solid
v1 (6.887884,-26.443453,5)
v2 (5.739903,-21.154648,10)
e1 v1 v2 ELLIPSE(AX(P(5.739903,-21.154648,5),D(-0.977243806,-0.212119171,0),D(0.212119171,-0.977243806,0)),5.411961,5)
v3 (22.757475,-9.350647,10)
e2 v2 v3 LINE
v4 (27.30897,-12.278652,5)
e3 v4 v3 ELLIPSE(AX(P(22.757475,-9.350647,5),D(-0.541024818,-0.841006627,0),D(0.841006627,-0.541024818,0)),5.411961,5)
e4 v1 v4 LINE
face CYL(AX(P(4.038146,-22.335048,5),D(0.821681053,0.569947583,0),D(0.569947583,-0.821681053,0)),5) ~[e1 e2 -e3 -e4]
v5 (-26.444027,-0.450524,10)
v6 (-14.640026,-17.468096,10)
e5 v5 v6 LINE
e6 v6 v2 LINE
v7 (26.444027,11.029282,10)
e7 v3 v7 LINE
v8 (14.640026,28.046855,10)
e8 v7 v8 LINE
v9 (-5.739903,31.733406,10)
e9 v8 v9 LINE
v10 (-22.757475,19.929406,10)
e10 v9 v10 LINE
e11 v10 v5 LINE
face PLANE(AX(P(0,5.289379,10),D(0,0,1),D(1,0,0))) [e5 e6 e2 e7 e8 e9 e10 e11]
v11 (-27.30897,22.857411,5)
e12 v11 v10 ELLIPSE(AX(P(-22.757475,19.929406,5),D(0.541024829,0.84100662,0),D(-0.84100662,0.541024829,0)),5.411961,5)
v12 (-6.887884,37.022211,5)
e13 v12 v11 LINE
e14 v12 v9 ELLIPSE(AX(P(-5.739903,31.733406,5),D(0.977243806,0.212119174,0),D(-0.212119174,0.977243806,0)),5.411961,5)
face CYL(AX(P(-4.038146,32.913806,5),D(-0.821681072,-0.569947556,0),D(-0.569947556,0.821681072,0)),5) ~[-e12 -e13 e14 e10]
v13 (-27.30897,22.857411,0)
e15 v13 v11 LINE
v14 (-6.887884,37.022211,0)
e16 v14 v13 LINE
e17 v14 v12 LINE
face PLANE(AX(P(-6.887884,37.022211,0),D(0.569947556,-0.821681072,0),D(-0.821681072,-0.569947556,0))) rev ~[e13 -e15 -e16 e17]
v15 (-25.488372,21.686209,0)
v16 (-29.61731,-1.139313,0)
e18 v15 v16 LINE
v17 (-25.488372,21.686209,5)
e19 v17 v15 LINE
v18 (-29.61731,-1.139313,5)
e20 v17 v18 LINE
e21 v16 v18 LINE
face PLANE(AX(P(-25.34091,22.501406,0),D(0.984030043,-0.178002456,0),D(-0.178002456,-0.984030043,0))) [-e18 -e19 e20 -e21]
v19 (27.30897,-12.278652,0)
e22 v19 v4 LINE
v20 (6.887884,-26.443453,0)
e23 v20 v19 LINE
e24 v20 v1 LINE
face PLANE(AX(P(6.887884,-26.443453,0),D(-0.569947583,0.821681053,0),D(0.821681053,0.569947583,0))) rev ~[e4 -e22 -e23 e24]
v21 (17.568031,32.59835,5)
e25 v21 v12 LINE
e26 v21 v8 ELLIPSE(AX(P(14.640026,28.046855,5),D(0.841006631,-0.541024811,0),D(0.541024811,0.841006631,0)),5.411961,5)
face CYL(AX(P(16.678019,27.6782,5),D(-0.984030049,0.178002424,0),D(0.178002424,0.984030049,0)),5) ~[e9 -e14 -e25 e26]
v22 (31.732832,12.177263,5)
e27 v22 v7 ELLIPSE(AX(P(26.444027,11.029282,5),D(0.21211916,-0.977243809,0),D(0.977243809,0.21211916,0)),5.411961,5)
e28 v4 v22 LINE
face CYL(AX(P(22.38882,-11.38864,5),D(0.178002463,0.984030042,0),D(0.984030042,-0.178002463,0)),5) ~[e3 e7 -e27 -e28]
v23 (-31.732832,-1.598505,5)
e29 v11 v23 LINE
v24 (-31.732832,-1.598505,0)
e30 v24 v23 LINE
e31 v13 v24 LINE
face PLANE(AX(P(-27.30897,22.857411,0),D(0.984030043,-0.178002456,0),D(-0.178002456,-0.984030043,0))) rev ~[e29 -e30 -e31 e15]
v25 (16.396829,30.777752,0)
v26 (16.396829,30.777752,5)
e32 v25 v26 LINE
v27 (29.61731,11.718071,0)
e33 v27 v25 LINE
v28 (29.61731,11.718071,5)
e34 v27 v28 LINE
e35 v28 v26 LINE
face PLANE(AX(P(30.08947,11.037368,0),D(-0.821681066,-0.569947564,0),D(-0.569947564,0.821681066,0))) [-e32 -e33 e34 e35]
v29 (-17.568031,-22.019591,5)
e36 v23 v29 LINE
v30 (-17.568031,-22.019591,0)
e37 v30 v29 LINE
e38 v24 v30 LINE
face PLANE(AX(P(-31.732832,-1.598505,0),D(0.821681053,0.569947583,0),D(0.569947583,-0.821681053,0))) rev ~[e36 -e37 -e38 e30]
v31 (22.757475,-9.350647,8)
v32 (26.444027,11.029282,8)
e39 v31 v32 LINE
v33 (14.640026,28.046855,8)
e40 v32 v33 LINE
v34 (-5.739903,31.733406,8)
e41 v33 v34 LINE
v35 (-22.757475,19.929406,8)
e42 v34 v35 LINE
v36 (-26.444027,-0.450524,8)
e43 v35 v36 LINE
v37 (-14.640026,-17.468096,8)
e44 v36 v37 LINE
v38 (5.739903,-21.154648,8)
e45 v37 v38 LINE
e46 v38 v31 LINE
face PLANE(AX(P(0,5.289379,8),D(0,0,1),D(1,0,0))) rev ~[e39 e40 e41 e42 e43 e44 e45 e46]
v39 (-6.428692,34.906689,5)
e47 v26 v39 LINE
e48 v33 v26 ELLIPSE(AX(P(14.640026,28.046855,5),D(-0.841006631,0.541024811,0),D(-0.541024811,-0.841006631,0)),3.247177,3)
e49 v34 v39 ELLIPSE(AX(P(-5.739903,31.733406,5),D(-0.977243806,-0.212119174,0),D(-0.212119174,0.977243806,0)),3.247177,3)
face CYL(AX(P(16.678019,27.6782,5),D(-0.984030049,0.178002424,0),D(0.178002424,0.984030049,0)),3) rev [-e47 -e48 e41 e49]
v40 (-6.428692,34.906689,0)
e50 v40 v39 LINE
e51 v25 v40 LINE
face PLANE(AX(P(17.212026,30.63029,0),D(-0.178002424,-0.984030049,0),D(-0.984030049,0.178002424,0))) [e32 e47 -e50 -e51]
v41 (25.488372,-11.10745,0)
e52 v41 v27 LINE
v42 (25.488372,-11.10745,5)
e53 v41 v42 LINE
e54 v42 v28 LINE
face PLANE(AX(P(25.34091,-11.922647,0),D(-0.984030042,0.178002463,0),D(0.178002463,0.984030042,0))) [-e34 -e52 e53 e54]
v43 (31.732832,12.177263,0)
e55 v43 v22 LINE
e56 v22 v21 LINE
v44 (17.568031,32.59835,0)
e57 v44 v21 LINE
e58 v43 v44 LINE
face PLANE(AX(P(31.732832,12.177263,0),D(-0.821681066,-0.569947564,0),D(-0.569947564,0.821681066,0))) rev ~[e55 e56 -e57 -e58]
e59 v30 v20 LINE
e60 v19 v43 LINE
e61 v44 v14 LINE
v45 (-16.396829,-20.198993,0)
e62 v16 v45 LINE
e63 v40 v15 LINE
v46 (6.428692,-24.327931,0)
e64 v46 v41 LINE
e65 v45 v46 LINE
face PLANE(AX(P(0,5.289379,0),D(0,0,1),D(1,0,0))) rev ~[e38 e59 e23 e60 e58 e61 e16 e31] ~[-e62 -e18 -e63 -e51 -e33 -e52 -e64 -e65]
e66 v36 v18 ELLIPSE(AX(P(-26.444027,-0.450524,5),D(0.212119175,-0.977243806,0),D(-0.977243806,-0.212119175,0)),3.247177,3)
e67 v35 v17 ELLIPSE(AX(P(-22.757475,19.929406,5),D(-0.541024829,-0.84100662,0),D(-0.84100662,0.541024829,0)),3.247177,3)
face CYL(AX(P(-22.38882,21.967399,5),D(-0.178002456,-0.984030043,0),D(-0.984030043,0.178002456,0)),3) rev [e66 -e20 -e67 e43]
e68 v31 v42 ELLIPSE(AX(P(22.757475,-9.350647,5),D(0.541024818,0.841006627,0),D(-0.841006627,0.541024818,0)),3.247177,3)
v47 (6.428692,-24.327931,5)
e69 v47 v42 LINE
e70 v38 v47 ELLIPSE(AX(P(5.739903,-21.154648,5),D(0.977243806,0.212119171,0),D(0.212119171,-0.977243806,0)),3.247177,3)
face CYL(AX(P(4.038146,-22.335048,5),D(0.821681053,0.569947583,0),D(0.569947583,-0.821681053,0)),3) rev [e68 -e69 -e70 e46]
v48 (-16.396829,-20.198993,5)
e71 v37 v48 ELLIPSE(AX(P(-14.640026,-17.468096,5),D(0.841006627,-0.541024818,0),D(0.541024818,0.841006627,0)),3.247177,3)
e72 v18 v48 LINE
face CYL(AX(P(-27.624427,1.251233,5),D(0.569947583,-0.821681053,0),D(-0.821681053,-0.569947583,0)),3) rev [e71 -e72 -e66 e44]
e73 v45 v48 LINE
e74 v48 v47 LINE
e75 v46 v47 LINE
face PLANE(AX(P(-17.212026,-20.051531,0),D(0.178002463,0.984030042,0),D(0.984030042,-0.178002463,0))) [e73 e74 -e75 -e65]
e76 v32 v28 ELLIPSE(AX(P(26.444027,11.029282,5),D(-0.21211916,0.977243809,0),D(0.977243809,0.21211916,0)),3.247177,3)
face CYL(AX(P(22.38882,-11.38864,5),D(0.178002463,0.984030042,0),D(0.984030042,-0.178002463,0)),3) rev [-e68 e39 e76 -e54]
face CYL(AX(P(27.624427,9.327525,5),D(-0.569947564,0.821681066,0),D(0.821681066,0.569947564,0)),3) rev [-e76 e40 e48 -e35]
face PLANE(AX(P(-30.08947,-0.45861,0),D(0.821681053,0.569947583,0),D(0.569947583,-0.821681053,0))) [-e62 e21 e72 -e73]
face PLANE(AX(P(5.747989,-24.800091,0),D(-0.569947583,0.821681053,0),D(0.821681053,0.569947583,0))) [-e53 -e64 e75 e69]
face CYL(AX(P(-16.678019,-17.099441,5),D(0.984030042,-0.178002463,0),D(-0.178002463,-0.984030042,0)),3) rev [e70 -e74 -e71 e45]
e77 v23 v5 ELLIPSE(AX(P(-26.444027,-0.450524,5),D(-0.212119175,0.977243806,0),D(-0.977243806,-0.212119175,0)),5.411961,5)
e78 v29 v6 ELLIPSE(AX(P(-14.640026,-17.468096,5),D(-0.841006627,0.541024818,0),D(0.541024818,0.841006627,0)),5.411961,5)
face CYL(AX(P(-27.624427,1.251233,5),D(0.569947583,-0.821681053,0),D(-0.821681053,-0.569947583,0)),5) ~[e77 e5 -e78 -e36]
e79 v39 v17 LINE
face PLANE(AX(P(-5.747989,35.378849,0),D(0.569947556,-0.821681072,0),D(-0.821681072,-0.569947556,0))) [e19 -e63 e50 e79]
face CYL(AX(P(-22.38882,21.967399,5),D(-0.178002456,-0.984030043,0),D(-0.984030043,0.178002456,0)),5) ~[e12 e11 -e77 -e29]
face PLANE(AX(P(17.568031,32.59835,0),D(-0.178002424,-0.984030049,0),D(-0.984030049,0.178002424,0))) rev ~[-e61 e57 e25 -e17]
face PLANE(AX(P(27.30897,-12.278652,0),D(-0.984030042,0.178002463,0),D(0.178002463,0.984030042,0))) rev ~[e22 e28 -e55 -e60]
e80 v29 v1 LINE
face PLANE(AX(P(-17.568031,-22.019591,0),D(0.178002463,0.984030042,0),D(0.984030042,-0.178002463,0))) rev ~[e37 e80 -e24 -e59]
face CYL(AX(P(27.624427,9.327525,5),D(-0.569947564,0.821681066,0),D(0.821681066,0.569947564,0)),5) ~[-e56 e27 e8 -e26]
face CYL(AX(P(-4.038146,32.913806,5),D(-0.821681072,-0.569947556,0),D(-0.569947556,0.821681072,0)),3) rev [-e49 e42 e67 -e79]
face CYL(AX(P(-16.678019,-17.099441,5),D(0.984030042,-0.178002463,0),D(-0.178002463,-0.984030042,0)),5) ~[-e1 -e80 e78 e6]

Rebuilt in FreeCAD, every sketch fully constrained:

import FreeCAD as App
import Part
import Sketcher
from FreeCAD import Vector


def edges_at(feature, points):
    """Names of the edges that pass closest to the given points."""
    edges = feature.Shape.Edges
    near = lambda p: min(range(len(edges)), key=lambda i: edges[i].distToShape(Part.Vertex(*p))[0])
    return sorted({f"Edge{near(p) + 1}" for p in points})


def faces_at(feature, points):
    """Names of the faces that lie closest to the given points."""
    faces = feature.Shape.Faces
    near = lambda p: min(range(len(faces)), key=lambda i: faces[i].distToShape(Part.Vertex(*p))[0])
    return sorted({f"Face{near(p) + 1}" for p in points})

doc = App.newDocument("Part")
body = doc.addObject("PartDesign::Body", "Body")

sketch1 = doc.addObject("Sketcher::SketchObject", "Sketch")
body.addObject(sketch1)
sketch1.AttachmentSupport = (doc.XY_Plane, [""])
sketch1.MapMode = "FlatFace"
sketch1.addGeometry([
    Part.LineSegment(Vector(-27, 23, 0), Vector(-32, -2, 0)),
    Part.LineSegment(Vector(-32, -2, 0), Vector(-18, -22, 0)),
    Part.LineSegment(Vector(-18, -22, 0), Vector(7, -26, 0)),
    Part.LineSegment(Vector(7, -26, 0), Vector(27, -12, 0)),
    Part.LineSegment(Vector(27, -12, 0), Vector(32, 12, 0)),
    Part.LineSegment(Vector(32, 12, 0), Vector(18, 33, 0)),
    Part.LineSegment(Vector(18, 33, 0), Vector(-7, 37, 0)),
    Part.LineSegment(Vector(-7, 37, 0), Vector(-27, 23, 0)),
], False)
sketch1.addConstraint([
    Sketcher.Constraint("Coincident", 0, 2, 1, 1),
    Sketcher.Constraint("Coincident", 1, 2, 2, 1),
    Sketcher.Constraint("Coincident", 2, 2, 3, 1),
    Sketcher.Constraint("Coincident", 3, 2, 4, 1),
    Sketcher.Constraint("Coincident", 4, 2, 5, 1),
    Sketcher.Constraint("Coincident", 5, 2, 6, 1),
    Sketcher.Constraint("Coincident", 6, 2, 7, 1),
    Sketcher.Constraint("Coincident", 7, 2, 0, 1),
    Sketcher.Constraint("Perpendicular", 0, 2),
    Sketcher.Constraint("Perpendicular", 1, 3),
    Sketcher.Constraint("Perpendicular", 2, 4),
    Sketcher.Constraint("Perpendicular", 3, 5),
    Sketcher.Constraint("Perpendicular", 4, 6),
    Sketcher.Constraint("Perpendicular", 5, 7),
    Sketcher.Constraint("Equal", 0, 1),
    Sketcher.Constraint("Equal", 1, 2),
    Sketcher.Constraint("Equal", 2, 3),
    Sketcher.Constraint("Equal", 3, 4),
    Sketcher.Constraint("Equal", 4, 5),
    Sketcher.Constraint("DistanceX", 1, 2, 3, 2, 44.877001),
    Sketcher.Constraint("DistanceX", 0, 2, 1, 2, 14.164801),
    Sketcher.Constraint("DistanceX", 0, 2, -1, 1, 31.732832),
    Sketcher.Constraint("DistanceY", 1, 2, -1, 1, 22.019591),
    Sketcher.Constraint("DistanceY", 3, 2, -1, 1, 12.278652),
])
pad1 = doc.addObject("PartDesign::Pad", "Pad")
body.addObject(pad1)
pad1.Profile = sketch1
pad1.Length = 10
doc.recompute()

fillet = doc.addObject("PartDesign::Fillet", "Fillet")
body.addObject(fillet)
fillet.Base = (pad1, edges_at(pad1, [
    (-5.34, -24.232, 10),
    (17.098, -19.361, 10),
    (29.521, -0.051, 10),
    (24.65, 22.388, 10),
    (5.34, 34.81, 10),
    (-17.098, 29.94, 10),
    (-29.521, 10.629, 10),
    (-24.65, -11.809, 10),
]))
fillet.Radius = 5
doc.recompute()

thickness = doc.addObject("PartDesign::Thickness", "Thickness")
body.addObject(thickness)
thickness.Base = (fillet, faces_at(fillet, [(0, 5.289, 0)]))
thickness.Value = 2
thickness.Reversed = True
thickness.Join = "Arc"

doc.recompute()
